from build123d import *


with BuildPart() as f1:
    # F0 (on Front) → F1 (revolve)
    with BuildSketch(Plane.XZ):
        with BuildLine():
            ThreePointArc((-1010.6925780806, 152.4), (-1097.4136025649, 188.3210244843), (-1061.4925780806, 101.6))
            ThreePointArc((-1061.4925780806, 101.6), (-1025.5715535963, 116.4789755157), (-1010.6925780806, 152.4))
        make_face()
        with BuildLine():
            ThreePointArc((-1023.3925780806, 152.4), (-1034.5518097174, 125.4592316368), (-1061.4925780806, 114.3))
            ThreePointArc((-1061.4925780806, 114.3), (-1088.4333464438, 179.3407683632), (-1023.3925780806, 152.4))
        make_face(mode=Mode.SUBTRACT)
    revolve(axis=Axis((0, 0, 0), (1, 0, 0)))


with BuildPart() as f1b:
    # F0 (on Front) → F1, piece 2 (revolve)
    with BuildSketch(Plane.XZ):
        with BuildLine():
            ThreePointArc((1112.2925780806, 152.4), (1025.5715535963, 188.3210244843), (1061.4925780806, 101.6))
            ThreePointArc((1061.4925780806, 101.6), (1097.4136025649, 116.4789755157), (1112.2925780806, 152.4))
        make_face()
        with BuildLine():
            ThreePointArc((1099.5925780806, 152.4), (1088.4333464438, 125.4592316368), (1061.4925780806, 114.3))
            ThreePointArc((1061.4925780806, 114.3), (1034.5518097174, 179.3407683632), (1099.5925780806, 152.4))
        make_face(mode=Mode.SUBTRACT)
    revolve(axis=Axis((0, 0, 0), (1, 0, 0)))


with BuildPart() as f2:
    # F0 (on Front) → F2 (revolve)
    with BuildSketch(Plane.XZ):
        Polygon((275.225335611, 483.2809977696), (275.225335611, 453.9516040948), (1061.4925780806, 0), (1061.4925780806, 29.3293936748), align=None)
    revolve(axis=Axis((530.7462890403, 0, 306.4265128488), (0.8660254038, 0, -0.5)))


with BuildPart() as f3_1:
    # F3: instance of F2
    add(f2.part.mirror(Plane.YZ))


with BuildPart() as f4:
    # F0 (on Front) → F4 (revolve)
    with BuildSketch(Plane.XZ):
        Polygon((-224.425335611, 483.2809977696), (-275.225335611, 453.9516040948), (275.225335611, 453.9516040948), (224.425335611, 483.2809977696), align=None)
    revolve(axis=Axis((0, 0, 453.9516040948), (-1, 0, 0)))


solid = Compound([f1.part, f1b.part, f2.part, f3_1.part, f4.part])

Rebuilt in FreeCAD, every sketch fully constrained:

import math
import FreeCAD as App
import Part
import Sketcher
Q = App.Units.Quantity

doc = App.newDocument("Part")
params = doc.addObject("Spreadsheet::Sheet", "Params")
for row, (alias, value) in enumerate([
    ("sketch1_diameter", "3 in"),
    ("sketch1_radius", "2 in"),
    ("revolution_angle", "360 deg"),
    ("sketch2_diameter", "3 in"),
    ("sketch2_radius", "2 in"),
    ("revolution2_angle", "360 deg"),
    ("revolution3_angle", "360 deg"),
    ("revolution4_angle", "360 deg"),
], start=1):
    params.set(f"A{row}", alias)
    params.set(f"B{row}", "=" + value)
    params.setAlias(f"B{row}", alias)

body = doc.addObject("PartDesign::Body", "Body")

# Sketch on XZ plane
sketch1 = body.newObject("Sketcher::SketchObject", "Sketch")
sketch1.AttachmentSupport = (doc.getObject("XZ_Plane"), [""])
sketch1.MapMode = "FlatFace"
sketch1.addGeometry(Part.ArcOfCircle(Part.Circle(App.Vector(-1061, 152, 0), App.Vector(0, 0, 1), 51), math.radians(0), math.radians(270)), False)
sketch1.addGeometry(Part.ArcOfCircle(Part.Circle(App.Vector(-1061, 152, 0), App.Vector(0, 0, 1), 51), math.radians(-90), math.radians(0)), False)
sketch1.addGeometry(Part.Circle(App.Vector(-1061, 152, 0), App.Vector(0, 0, 1), 38), False)
sketch1.addConstraint(Sketcher.Constraint("Tangent", 0, 1, 1, 2))
sketch1.addConstraint(Sketcher.Constraint("Coincident", 1, 1, 0, 2))
sketch1.addConstraint(Sketcher.Constraint("Coincident", 2, 3, 0, 3))
sketch1.addConstraint(Sketcher.Constraint("Horizontal", 2, 3, 0, 1))
sketch1.addConstraint(Sketcher.Constraint("Vertical", 2, 3, 1, 1))
sketch1.addConstraint(Sketcher.Constraint("Diameter", 2, Q("3 in")))
sketch1.addConstraint(Sketcher.Constraint("Radius", 0, Q("2 in")))
sketch1.addConstraint(Sketcher.Constraint("DistanceY", -1, 1, 0, 3, Q("6 in")))
sketch1.addConstraint(Sketcher.Constraint("DistanceX", 0, 3, -1, 1, Q("1061.492578 mm")))
sketch1.setExpression("Constraints[5]", "Params.sketch1_diameter")
sketch1.setExpression("Constraints[6]", "Params.sketch1_radius")
revolution = body.newObject("PartDesign::Revolution", "Revolution")
revolution.Profile = sketch1
revolution.ReferenceAxis = (sketch1, ["H_Axis"])
revolution.setExpression("Angle", "Params.revolution_angle")
body2 = doc.addObject("PartDesign::Body", "Body001")

# Sketch on XZ plane
sketch2 = body2.newObject("Sketcher::SketchObject", "Sketch001")
sketch2.AttachmentSupport = (doc.getObject("XZ_Plane001"), [""])
sketch2.MapMode = "FlatFace"
sketch2.addGeometry(Part.ArcOfCircle(Part.Circle(App.Vector(1061, 152, 0), App.Vector(0, 0, 1), 51), math.radians(0), math.radians(270)), False)
sketch2.addGeometry(Part.ArcOfCircle(Part.Circle(App.Vector(1061, 152, 0), App.Vector(0, 0, 1), 51), math.radians(-90), math.radians(0)), False)
sketch2.addGeometry(Part.Circle(App.Vector(1061, 152, 0), App.Vector(0, 0, 1), 38), False)
sketch2.addConstraint(Sketcher.Constraint("Tangent", 0, 1, 1, 2))
sketch2.addConstraint(Sketcher.Constraint("Coincident", 1, 1, 0, 2))
sketch2.addConstraint(Sketcher.Constraint("Coincident", 2, 3, 0, 3))
sketch2.addConstraint(Sketcher.Constraint("Horizontal", 2, 3, 0, 1))
sketch2.addConstraint(Sketcher.Constraint("Vertical", 2, 3, 1, 1))
sketch2.addConstraint(Sketcher.Constraint("Diameter", 2, Q("3 in")))
sketch2.addConstraint(Sketcher.Constraint("Radius", 0, Q("2 in")))
sketch2.addConstraint(Sketcher.Constraint("DistanceY", -1, 1, 0, 3, Q("6 in")))
sketch2.addConstraint(Sketcher.Constraint("DistanceX", -1, 1, 0, 3, Q("1061.492578 mm")))
sketch2.setExpression("Constraints[5]", "Params.sketch2_diameter")
sketch2.setExpression("Constraints[6]", "Params.sketch2_radius")
revolution2 = body2.newObject("PartDesign::Revolution", "Revolution001")
revolution2.Profile = sketch2
revolution2.ReferenceAxis = (sketch2, ["H_Axis"])
revolution2.setExpression("Angle", "Params.revolution2_angle")
body3 = doc.addObject("PartDesign::Body", "Body002")

# Sketch on XZ plane
sketch3 = body3.newObject("Sketcher::SketchObject", "Sketch002")
sketch3.AttachmentSupport = (doc.getObject("XZ_Plane002"), [""])
sketch3.MapMode = "FlatFace"
sketch3.addGeometry(Part.LineSegment(App.Vector(275, 483, 0), App.Vector(275, 454, 0)), False)
sketch3.addGeometry(Part.LineSegment(App.Vector(275, 454, 0), App.Vector(1061, 0, 0)), False)
sketch3.addGeometry(Part.LineSegment(App.Vector(1061, 0, 0), App.Vector(1061, 29, 0)), False)
sketch3.addGeometry(Part.LineSegment(App.Vector(1061, 29, 0), App.Vector(275, 483, 0)), False)
sketch3.addGeometry(Part.LineSegment(App.Vector(263, 461, 0), App.Vector(1061, 0, 0)), True)  # axis
sketch3.addConstraint(Sketcher.Constraint("Coincident", 0, 2, 1, 1))
sketch3.addConstraint(Sketcher.Constraint("Coincident", 1, 2, 2, 1))
sketch3.addConstraint(Sketcher.Constraint("Coincident", 2, 2, 3, 1))
sketch3.addConstraint(Sketcher.Constraint("Coincident", 3, 2, 0, 1))
sketch3.addConstraint(Sketcher.Constraint("Vertical", 0))
sketch3.addConstraint(Sketcher.Constraint("Vertical", 2))
sketch3.addConstraint(Sketcher.Constraint("Coincident", 4, 2, 1, 2))
sketch3.addConstraint(Sketcher.Constraint("PointOnObject", 1, 2, -1))
sketch3.addConstraint(Sketcher.Constraint("Parallel", 1, 3))
sketch3.addConstraint(Sketcher.Constraint("Parallel", 3, 4))
sketch3.addConstraint(Sketcher.Constraint("Angle", 1, Q("-30 deg")))
sketch3.addConstraint(Sketcher.Constraint("DistanceX", 4, 1, 0, 2, Q("0.5 in")))
sketch3.addConstraint(Sketcher.Constraint("Distance", 1, Q("907.903208 mm")))
sketch3.addConstraint(Sketcher.Constraint("DistanceY", 0, 2, 0, 1, Q("29.329394 mm")))
sketch3.addConstraint(Sketcher.Constraint("DistanceX", -1, 1, 1, 2, Q("1061.492578 mm")))
revolution3 = body3.newObject("PartDesign::Revolution", "Revolution002")
revolution3.Profile = sketch3
revolution3.ReferenceAxis = (sketch3, ["Axis0"])
revolution3.setExpression("Angle", "Params.revolution3_angle")
body4 = doc.addObject("PartDesign::Body", "Body003")
doc.recompute()

mirroring = doc.addObject("Part::Mirroring", "Mirroring")
mirroring.Source = body3
mirroring.Base = App.Vector(0, 0, 0)
mirroring.Normal = App.Vector(1, 0, 0)
body4.BaseFeature = mirroring
doc.recompute()
body5 = doc.addObject("PartDesign::Body", "Body004")

# Sketch on XZ plane
sketch4 = body5.newObject("Sketcher::SketchObject", "Sketch003")
sketch4.AttachmentSupport = (doc.getObject("XZ_Plane004"), [""])
sketch4.MapMode = "FlatFace"
sketch4.addGeometry(Part.LineSegment(App.Vector(-224, 483, 0), App.Vector(-275, 454, 0)), False)
sketch4.addGeometry(Part.LineSegment(App.Vector(-275, 454, 0), App.Vector(275, 454, 0)), False)
sketch4.addGeometry(Part.LineSegment(App.Vector(275, 454, 0), App.Vector(224, 483, 0)), False)
sketch4.addGeometry(Part.LineSegment(App.Vector(224, 483, 0), App.Vector(-224, 483, 0)), False)
sketch4.addGeometry(Part.LineSegment(App.Vector(275, 454, 0), App.Vector(-275, 454, 0)), True)  # axis
sketch4.addConstraint(Sketcher.Constraint("Coincident", 0, 2, 1, 1))
sketch4.addConstraint(Sketcher.Constraint("Coincident", 1, 2, 2, 1))
sketch4.addConstraint(Sketcher.Constraint("Coincident", 2, 2, 3, 1))
sketch4.addConstraint(Sketcher.Constraint("Coincident", 3, 2, 0, 1))
sketch4.addConstraint(Sketcher.Constraint("Horizontal", 1))
sketch4.addConstraint(Sketcher.Constraint("Horizontal", 3))
sketch4.addConstraint(Sketcher.Constraint("Horizontal", 4))
sketch4.addConstraint(Sketcher.Constraint("Coincident", 4, 1, 1, 2))
sketch4.addConstraint(Sketcher.Constraint("Equal", 1, 4))
sketch4.addConstraint(Sketcher.Constraint("Equal", 0, 2))
sketch4.addConstraint(Sketcher.Constraint("Angle", 0, Q("-150 deg")))
sketch4.addConstraint(Sketcher.Constraint("DistanceX", 2, 2, 1, 2, Q("2 in")))
sketch4.addConstraint(Sketcher.Constraint("DistanceX", 1, 1, 1, 2, Q("550.450671 mm")))
sketch4.addConstraint(Sketcher.Constraint("DistanceX", 0, 2, -1, 1, Q("275.225336 mm")))
sketch4.addConstraint(Sketcher.Constraint("DistanceY", -1, 1, 0, 2, Q("453.951604 mm")))
revolution4 = body5.newObject("PartDesign::Revolution", "Revolution003")
revolution4.Profile = sketch4
revolution4.ReferenceAxis = (sketch4, ["Axis0"])
revolution4.setExpression("Angle", "Params.revolution4_angle")
mirroring.Visibility = False

doc.recompute()
